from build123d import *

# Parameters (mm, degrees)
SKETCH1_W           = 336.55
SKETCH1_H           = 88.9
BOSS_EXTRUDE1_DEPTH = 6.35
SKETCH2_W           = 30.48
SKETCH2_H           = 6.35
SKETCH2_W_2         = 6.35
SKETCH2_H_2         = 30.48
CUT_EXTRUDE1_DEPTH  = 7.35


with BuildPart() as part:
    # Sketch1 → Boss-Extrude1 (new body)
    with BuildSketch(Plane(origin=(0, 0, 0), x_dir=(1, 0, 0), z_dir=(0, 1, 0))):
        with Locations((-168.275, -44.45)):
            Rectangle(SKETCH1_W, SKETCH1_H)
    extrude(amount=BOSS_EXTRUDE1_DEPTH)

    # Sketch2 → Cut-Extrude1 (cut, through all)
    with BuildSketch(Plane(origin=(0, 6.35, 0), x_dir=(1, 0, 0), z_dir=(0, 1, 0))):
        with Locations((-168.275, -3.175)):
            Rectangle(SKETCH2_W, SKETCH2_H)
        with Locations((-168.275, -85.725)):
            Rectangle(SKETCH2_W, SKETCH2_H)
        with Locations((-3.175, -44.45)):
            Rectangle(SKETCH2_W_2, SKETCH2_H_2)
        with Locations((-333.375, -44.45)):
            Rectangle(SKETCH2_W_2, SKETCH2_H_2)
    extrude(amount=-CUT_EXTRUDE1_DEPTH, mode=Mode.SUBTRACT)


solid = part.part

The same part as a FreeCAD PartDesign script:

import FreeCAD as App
import Part
import Sketcher

V = App.Vector
Q = App.Units.Quantity


def add_polygon(sketch, points):
    """Adds a closed chain of lines whose ends are joined by coincident constraints."""
    first, n = sketch.GeometryCount, len(points)
    for a, b in zip(points, points[1:] + points[:1]):
        sketch.addGeometry(Part.LineSegment(App.Vector(*a, 0), App.Vector(*b, 0)), False)
    for i in range(n):
        sketch.addConstraint(Sketcher.Constraint("Coincident", first + i, 2, first + (i + 1) % n, 1))

doc = App.newDocument("Part")
params = doc.addObject("Spreadsheet::Sheet", "Params")
for row, (alias, value) in enumerate([
    ("sketch1_height", "3.5 in"),
    ("sketch1_width", "13.25 in"),
    ("pad1_length", "0.25 in"),
    ("sketch2_width", "1.2 in"),
    ("sketch2_width2", "0.25 in"),
], start=1):
    params.set(f"A{row}", alias)
    params.set(f"B{row}", "=" + value)
    params.setAlias(f"B{row}", alias)

body = doc.addObject("PartDesign::Body", "Body")

# Sketch on XZ plane
sketch1 = doc.addObject("Sketcher::SketchObject", "Sketch")
body.addObject(sketch1)
sketch1.AttachmentSupport = (doc.XZ_Plane, [""])
sketch1.MapMode = "FlatFace"
add_polygon(sketch1, [(-337, 0), (-337, 89), (0, 89), (0, 0)])  # lines 0-3
sketch1.addConstraint(Sketcher.Constraint("Vertical", 0))
sketch1.addConstraint(Sketcher.Constraint("Horizontal", 1))
sketch1.addConstraint(Sketcher.Constraint("Vertical", 2))
sketch1.addConstraint(Sketcher.Constraint("Horizontal", 3))
sketch1.addConstraint(Sketcher.Constraint("Coincident", 2, 2, -1, 1))
sketch1.addConstraint(Sketcher.Constraint("DistanceY", 0, 1, 0, 2, Q("3.5 in")))
sketch1.addConstraint(Sketcher.Constraint("DistanceX", 1, 1, 1, 2, Q("13.25 in")))
sketch1.setExpression("Constraints[9]", "Params.sketch1_height")
sketch1.setExpression("Constraints[10]", "Params.sketch1_width")
pad1 = doc.addObject("PartDesign::Pad", "Pad")
body.addObject(pad1)
pad1.Profile = sketch1
pad1.setExpression("Length", "Params.pad1_length")
pad1.Reversed = True

# Sketch on XZ plane
sketch2 = doc.addObject("Sketcher::SketchObject", "Sketch001")
body.addObject(sketch2)
sketch2.AttachmentSupport = (doc.XZ_Plane, [""])
sketch2.MapMode = "FlatFace"
sketch2.AttachmentOffset = App.Placement(V(0, 0, -0.25 * 25.4), App.Rotation())
add_polygon(sketch2, [(-184, 0), (-184, 6), (-153, 6), (-153, 0)])  # lines 0-3
add_polygon(sketch2, [(-184, 83), (-184, 89), (-153, 89), (-153, 83)])  # lines 4-7
add_polygon(sketch2, [(-6, 29), (-6, 60), (0, 60), (0, 29)])  # lines 8-11
add_polygon(sketch2, [(-337, 29), (-337, 60), (-330, 60), (-330, 29)])  # lines 12-15
sketch2.addConstraint(Sketcher.Constraint("Vertical", 0))
sketch2.addConstraint(Sketcher.Constraint("Horizontal", 1))
sketch2.addConstraint(Sketcher.Constraint("Vertical", 2))
sketch2.addConstraint(Sketcher.Constraint("Horizontal", 3))
sketch2.addConstraint(Sketcher.Constraint("Vertical", 4))
sketch2.addConstraint(Sketcher.Constraint("Horizontal", 5))
sketch2.addConstraint(Sketcher.Constraint("Vertical", 6))
sketch2.addConstraint(Sketcher.Constraint("Horizontal", 7))
sketch2.addConstraint(Sketcher.Constraint("Vertical", 8))
sketch2.addConstraint(Sketcher.Constraint("Horizontal", 9))
sketch2.addConstraint(Sketcher.Constraint("Vertical", 10))
sketch2.addConstraint(Sketcher.Constraint("Horizontal", 11))
sketch2.addConstraint(Sketcher.Constraint("Vertical", 12))
sketch2.addConstraint(Sketcher.Constraint("Horizontal", 13))
sketch2.addConstraint(Sketcher.Constraint("Vertical", 14))
sketch2.addConstraint(Sketcher.Constraint("Horizontal", 15))
sketch2.addConstraint(Sketcher.Constraint("PointOnObject", 2, 2, -1))
sketch2.addConstraint(Sketcher.Constraint("PointOnObject", 9, 2, -2))
sketch2.addConstraint(Sketcher.Constraint("Horizontal", 9, 2, 12, 2))
sketch2.addConstraint(Sketcher.Constraint("Horizontal", 11, 2, 14, 2))
sketch2.addConstraint(Sketcher.Constraint("Vertical", 3, 2, 4, 2))
sketch2.addConstraint(Sketcher.Constraint("Vertical", 2, 2, 5, 2))
sketch2.addConstraint(Sketcher.Constraint("Equal", 11, 13))
sketch2.addConstraint(Sketcher.Constraint("Equal", 15, 0))
sketch2.addConstraint(Sketcher.Constraint("Equal", 2, 4))
sketch2.addConstraint(Sketcher.Constraint("Equal", 7, 8))
sketch2.addConstraint(Sketcher.Constraint("DistanceX", 1, 1, 1, 2, Q("1.2 in")))
sketch2.addConstraint(Sketcher.Constraint("DistanceX", 13, 2, -1, 1, Q("13 in")))
sketch2.addConstraint(Sketcher.Constraint("DistanceY", 1, 2, 6, 2, Q("3 in")))
sketch2.addConstraint(Sketcher.Constraint("DistanceX", 9, 1, 9, 2, Q("0.25 in")))
sketch2.addConstraint(Sketcher.Constraint("DistanceY", 8, 2, 6, 2, Q("0.9 in")))
sketch2.addConstraint(Sketcher.Constraint("DistanceX", 0, 2, -1, 1, Q("7.225 in")))
sketch2.setExpression("Constraints[42]", "Params.sketch2_width")
sketch2.setExpression("Constraints[45]", "Params.sketch2_width2")
pocket1 = doc.addObject("PartDesign::Pocket", "Pocket")
body.addObject(pocket1)
pocket1.Profile = sketch2
pocket1.Type = "ThroughAll"
pocket1.Reversed = True

doc.recompute()
